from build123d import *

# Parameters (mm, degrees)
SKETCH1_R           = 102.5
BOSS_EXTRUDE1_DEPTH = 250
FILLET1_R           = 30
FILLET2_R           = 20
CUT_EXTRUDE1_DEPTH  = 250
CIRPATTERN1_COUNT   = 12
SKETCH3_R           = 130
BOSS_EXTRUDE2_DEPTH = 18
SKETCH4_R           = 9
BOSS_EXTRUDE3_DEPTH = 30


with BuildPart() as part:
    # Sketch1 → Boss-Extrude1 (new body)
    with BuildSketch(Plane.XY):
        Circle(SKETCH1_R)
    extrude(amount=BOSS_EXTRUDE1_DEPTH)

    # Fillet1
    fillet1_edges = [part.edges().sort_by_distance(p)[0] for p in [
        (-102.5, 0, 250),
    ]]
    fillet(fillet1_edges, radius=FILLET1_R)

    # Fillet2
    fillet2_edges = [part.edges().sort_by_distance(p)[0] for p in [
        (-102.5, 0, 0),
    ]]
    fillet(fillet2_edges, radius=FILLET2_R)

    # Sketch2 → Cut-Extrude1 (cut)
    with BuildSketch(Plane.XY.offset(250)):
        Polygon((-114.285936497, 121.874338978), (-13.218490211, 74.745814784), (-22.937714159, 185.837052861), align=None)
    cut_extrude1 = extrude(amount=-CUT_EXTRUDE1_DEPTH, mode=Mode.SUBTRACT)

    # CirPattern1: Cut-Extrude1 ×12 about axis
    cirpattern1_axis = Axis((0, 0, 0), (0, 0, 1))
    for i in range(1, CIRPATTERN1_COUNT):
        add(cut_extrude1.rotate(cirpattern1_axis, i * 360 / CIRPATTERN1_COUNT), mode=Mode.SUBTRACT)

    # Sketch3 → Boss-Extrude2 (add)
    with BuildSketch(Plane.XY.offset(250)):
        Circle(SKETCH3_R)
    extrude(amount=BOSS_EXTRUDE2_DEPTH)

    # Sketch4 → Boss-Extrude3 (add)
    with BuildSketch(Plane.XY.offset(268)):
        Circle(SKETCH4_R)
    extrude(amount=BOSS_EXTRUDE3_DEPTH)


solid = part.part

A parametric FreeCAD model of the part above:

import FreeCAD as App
import Part
import Sketcher
Q = App.Units.Quantity


def edges_at(feature, points):
    """Names of the edges that pass closest to the given points."""
    edges = feature.Shape.Edges
    near = lambda p: min(range(len(edges)), key=lambda i: edges[i].distToShape(Part.Vertex(*p))[0])
    return sorted({f"Edge{near(p) + 1}" for p in points})


def add_polygon(sketch, points):
    """Adds a closed chain of lines whose ends are joined by coincident constraints."""
    first, n = sketch.GeometryCount, len(points)
    for a, b in zip(points, points[1:] + points[:1]):
        sketch.addGeometry(Part.LineSegment(App.Vector(*a, 0), App.Vector(*b, 0)), False)
    for i in range(n):
        sketch.addConstraint(Sketcher.Constraint("Coincident", first + i, 2, first + (i + 1) % n, 1))

doc = App.newDocument("Part")
body = doc.addObject("PartDesign::Body", "Body")

# Sketch on XY plane
sketch1 = body.newObject("Sketcher::SketchObject", "Sketch")
sketch1.AttachmentSupport = (doc.getObject("XY_Plane"), [""])
sketch1.MapMode = "FlatFace"
sketch1.addGeometry(Part.Circle(App.Vector(0, 0, 0), App.Vector(0, 0, 1), 102.5), False)
sketch1.addConstraint(Sketcher.Constraint("Coincident", 0, 3, -1, 1))
sketch1.addConstraint(Sketcher.Constraint("Diameter", 0, Q("205 mm")))
pad1 = body.newObject("PartDesign::Pad", "Pad")
pad1.Profile = sketch1
pad1.Length = 250
doc.recompute()

fillet = body.newObject("PartDesign::Fillet", "Fillet")
fillet.Base = (pad1, edges_at(pad1, [(-102.5, 0, 250)]))
fillet.Radius = 30
doc.recompute()

fillet2 = body.newObject("PartDesign::Fillet", "Fillet001")
fillet2.Base = (fillet, edges_at(fillet, [(-102.5, 0, 0)]))
fillet2.Radius = 20

# Sketch on XY plane
sketch2 = body.newObject("Sketcher::SketchObject", "Sketch001")
sketch2.AttachmentSupport = (doc.getObject("XY_Plane"), [""])
sketch2.MapMode = "FlatFace"
sketch2.AttachmentOffset = App.Placement(App.Vector(0, 0, 250), App.Rotation())
add_polygon(sketch2, [(-114.285936, 121.874339), (-13.21849, 74.745815), (-22.937714, 185.837053)])  # lines 0-2
sketch2.addConstraint(Sketcher.Constraint("Equal", 0, 1))
sketch2.addConstraint(Sketcher.Constraint("Equal", 1, 2))
sketch2.addConstraint(Sketcher.Constraint("Angle", 0, Q("-25 deg")))
sketch2.addConstraint(Sketcher.Constraint("Distance", 0, Q("111.515589 mm")))
sketch2.addConstraint(Sketcher.Constraint("DistanceX", 0, 2, -1, 1, Q("13.21849 mm")))
sketch2.addConstraint(Sketcher.Constraint("DistanceY", -1, 1, 2, 2, Q("121.874339 mm")))
pocket1 = body.newObject("PartDesign::Pocket", "Pocket")
pocket1.Profile = sketch2
pocket1.Length = 250
doc.recompute()

polarpattern = body.newObject("PartDesign::PolarPattern", "PolarPattern")
polarpattern.Originals = [pocket1]
polarpattern.Axis = (doc.getObject("Z_Axis"), [""])
polarpattern.Angle = 360
polarpattern.Occurrences = 12
body.Tip = polarpattern

# Sketch on XY plane
sketch3 = body.newObject("Sketcher::SketchObject", "Sketch002")
sketch3.AttachmentSupport = (doc.getObject("XY_Plane"), [""])
sketch3.MapMode = "FlatFace"
sketch3.AttachmentOffset = App.Placement(App.Vector(0, 0, 250), App.Rotation())
sketch3.addGeometry(Part.Circle(App.Vector(0, 0, 0), App.Vector(0, 0, 1), 130), False)
sketch3.addConstraint(Sketcher.Constraint("Coincident", 0, 3, -1, 1))
sketch3.addConstraint(Sketcher.Constraint("Diameter", 0, Q("260 mm")))
pad2 = body.newObject("PartDesign::Pad", "Pad001")
pad2.Profile = sketch3
pad2.Length = 18

# Sketch on XY plane
sketch4 = body.newObject("Sketcher::SketchObject", "Sketch003")
sketch4.AttachmentSupport = (doc.getObject("XY_Plane"), [""])
sketch4.MapMode = "FlatFace"
sketch4.AttachmentOffset = App.Placement(App.Vector(0, 0, 268), App.Rotation())
sketch4.addGeometry(Part.Circle(App.Vector(0, 0, 0), App.Vector(0, 0, 1), 9), False)
sketch4.addConstraint(Sketcher.Constraint("Coincident", 0, 3, -1, 1))
sketch4.addConstraint(Sketcher.Constraint("Diameter", 0, Q("18 mm")))
pad3 = body.newObject("PartDesign::Pad", "Pad002")
pad3.Profile = sketch4
pad3.Length = 30

doc.recompute()
